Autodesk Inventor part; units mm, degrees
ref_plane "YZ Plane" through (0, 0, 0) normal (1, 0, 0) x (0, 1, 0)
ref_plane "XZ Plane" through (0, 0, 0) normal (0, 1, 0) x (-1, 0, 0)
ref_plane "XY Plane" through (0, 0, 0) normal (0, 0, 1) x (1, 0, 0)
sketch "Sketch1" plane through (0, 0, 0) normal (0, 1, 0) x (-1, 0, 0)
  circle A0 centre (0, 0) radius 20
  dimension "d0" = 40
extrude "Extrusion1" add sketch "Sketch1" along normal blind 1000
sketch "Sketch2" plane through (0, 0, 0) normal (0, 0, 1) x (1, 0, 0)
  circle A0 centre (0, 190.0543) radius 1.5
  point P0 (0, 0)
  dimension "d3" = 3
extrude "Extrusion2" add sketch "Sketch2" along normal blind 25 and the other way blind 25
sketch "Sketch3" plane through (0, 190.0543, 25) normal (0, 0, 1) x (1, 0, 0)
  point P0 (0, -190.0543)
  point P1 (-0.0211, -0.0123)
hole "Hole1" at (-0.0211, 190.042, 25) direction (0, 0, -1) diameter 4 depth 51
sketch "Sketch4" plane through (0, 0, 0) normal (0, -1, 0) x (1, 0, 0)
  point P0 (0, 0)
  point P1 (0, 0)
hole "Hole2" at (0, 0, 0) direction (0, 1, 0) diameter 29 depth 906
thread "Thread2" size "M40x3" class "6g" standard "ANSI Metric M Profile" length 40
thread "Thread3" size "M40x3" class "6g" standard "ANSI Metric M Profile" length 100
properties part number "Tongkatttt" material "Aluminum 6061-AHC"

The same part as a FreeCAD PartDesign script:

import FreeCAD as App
import Part
import Sketcher

doc = App.newDocument("Part")
body = doc.addObject("PartDesign::Body", "Body")

# Sketch on XZ plane
sketch1 = doc.addObject("Sketcher::SketchObject", "Sketch")
body.addObject(sketch1)
sketch1.AttachmentSupport = (doc.XZ_Plane, [""])
sketch1.MapMode = "FlatFace"
sketch1.addGeometry(Part.Circle(App.Vector(0, 0, 0), App.Vector(0, 0, 1), 20), False)
sketch1.addConstraint([
    Sketcher.Constraint("Coincident", 0, 3, -1, 1),
    Sketcher.Constraint("Diameter", 0, 40.0),
])
pad1 = doc.addObject("PartDesign::Pad", "Pad")
body.addObject(pad1)
pad1.Profile = sketch1
pad1.Length = 1000
pad1.Reversed = True

# Sketch on XY plane
sketch2 = doc.addObject("Sketcher::SketchObject", "Sketch001")
body.addObject(sketch2)
sketch2.AttachmentSupport = (doc.XY_Plane, [""])
sketch2.MapMode = "FlatFace"
sketch2.addGeometry(Part.Circle(App.Vector(0, 190.0543, 0), App.Vector(0, 0, 1), 1.5), False)
sketch2.addConstraint([
    Sketcher.Constraint("PointOnObject", 0, 3, -2),
    Sketcher.Constraint("Diameter", 0, 3.0),
    Sketcher.Constraint("DistanceY", -1, 1, 0, 3, 190.0543),
])
pad2 = doc.addObject("PartDesign::Pad", "Pad001")
body.addObject(pad2)
pad2.Profile = sketch2
pad2.Type = "TwoLengths"
pad2.Length = 25
pad2.Length2 = 25

# Sketch on XY plane
sketch3 = doc.addObject("Sketcher::SketchObject", "Sketch002")
body.addObject(sketch3)
sketch3.AttachmentSupport = (doc.XY_Plane, [""])
sketch3.MapMode = "FlatFace"
sketch3.AttachmentOffset = App.Placement(App.Vector(0, 0, 25), App.Rotation())
sketch3.addGeometry(Part.Circle(App.Vector(-0.0211, 190.042, 0), App.Vector(0, 0, 1), 2), False)
sketch3.addConstraint([
    Sketcher.Constraint("Diameter", 0, 4.0),
    Sketcher.Constraint("DistanceX", 0, 3, -1, 1, 0.021),
    Sketcher.Constraint("DistanceY", -1, 1, 0, 3, 190.042),
])
doc.recompute()
hole = doc.addObject("PartDesign::Hole", "Hole")
body.addObject(hole)
hole.Profile = sketch3
hole.ThreadType = "None"
hole.Diameter = 4
hole.DepthType = "Dimension"
hole.Depth = 51
hole.DrillPoint = "Flat"

# Sketch on XZ plane
sketch4 = doc.addObject("Sketcher::SketchObject", "Sketch003")
body.addObject(sketch4)
sketch4.AttachmentSupport = (doc.XZ_Plane, [""])
sketch4.MapMode = "FlatFace"
sketch4.addGeometry(Part.Circle(App.Vector(0, 0, 0), App.Vector(0, 0, 1), 14.5), False)
sketch4.addConstraint([
    Sketcher.Constraint("Coincident", 0, 3, -1, 1),
    Sketcher.Constraint("Diameter", 0, 29.0),
])
doc.recompute()
hole2 = doc.addObject("PartDesign::Hole", "Hole001")
body.addObject(hole2)
hole2.Profile = sketch4
hole2.ThreadType = "None"
hole2.Diameter = 29
hole2.DepthType = "Dimension"
hole2.Depth = 906
hole2.DrillPoint = "Flat"

doc.recompute()
